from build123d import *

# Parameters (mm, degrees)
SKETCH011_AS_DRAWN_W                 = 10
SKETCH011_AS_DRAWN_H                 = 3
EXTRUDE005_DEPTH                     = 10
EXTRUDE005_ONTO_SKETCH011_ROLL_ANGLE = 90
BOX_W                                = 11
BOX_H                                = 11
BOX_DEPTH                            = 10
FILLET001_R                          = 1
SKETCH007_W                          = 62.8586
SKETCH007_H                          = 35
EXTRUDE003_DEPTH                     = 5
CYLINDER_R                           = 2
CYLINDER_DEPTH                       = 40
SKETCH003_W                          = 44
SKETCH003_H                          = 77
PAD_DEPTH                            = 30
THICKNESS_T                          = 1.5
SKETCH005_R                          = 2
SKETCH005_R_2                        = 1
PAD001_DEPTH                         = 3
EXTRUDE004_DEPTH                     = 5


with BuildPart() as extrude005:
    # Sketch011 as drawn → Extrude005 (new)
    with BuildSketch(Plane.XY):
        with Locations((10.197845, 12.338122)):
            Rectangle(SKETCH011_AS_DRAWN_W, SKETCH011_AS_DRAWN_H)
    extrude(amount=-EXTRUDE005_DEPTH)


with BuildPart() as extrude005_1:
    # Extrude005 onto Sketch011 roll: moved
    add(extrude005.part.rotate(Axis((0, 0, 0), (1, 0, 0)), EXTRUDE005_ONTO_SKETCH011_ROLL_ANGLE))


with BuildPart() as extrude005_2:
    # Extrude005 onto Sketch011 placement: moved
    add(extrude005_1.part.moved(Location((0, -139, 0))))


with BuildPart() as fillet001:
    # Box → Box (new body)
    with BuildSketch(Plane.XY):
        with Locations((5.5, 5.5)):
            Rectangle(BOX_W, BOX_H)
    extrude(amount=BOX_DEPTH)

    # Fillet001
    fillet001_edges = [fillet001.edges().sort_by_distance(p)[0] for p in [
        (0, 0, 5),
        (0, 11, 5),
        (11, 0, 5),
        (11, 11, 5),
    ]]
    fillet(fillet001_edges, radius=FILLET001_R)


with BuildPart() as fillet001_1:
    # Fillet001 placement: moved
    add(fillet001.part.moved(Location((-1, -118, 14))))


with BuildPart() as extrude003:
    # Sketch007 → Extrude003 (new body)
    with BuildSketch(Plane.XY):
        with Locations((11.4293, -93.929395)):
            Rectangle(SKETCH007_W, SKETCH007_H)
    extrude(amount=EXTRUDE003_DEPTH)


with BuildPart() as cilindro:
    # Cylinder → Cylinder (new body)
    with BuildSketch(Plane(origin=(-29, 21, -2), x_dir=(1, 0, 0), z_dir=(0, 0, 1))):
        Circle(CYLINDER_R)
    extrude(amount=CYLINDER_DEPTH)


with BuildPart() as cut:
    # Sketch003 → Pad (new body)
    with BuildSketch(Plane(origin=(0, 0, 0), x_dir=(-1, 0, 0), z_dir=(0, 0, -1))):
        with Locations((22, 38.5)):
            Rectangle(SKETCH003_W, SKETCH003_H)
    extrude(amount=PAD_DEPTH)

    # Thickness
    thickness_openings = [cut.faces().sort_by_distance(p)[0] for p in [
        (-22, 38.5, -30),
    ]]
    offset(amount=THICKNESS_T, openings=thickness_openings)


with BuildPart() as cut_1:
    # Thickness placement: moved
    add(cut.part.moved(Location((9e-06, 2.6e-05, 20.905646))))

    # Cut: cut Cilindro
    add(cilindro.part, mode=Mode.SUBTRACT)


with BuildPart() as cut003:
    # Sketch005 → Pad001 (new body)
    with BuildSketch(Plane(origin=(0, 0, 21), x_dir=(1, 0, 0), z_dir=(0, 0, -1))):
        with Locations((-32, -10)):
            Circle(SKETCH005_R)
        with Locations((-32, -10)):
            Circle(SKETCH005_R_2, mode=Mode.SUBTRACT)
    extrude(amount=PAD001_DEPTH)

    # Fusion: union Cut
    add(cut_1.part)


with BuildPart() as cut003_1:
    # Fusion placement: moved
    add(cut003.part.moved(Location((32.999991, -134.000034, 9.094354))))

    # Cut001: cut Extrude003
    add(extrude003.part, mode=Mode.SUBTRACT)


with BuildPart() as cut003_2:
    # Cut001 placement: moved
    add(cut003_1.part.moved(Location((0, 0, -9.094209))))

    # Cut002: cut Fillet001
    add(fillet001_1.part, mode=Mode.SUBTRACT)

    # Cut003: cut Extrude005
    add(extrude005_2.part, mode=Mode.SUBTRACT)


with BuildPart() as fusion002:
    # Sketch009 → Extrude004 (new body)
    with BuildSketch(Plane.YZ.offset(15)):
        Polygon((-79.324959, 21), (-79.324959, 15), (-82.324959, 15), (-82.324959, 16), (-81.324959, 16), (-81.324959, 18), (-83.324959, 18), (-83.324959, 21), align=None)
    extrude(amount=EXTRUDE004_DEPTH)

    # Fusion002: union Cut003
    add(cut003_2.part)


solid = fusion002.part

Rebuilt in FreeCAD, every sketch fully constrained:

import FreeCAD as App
import Part
import Sketcher

V = App.Vector
Q = App.Units.Quantity


def edges_at(feature, points):
    """Names of the edges that pass closest to the given points."""
    edges = feature.Shape.Edges
    near = lambda p: min(range(len(edges)), key=lambda i: edges[i].distToShape(Part.Vertex(*p))[0])
    return sorted({f"Edge{near(p) + 1}" for p in points})


def faces_at(feature, points):
    """Names of the faces that lie closest to the given points."""
    faces = feature.Shape.Faces
    near = lambda p: min(range(len(faces)), key=lambda i: faces[i].distToShape(Part.Vertex(*p))[0])
    return sorted({f"Face{near(p) + 1}" for p in points})

doc = App.newDocument("Part")
body = doc.addObject("PartDesign::Body", "Body")

# Sketch on XY plane
sketch1 = doc.addObject("Sketcher::SketchObject", "Sketch")
body.addObject(sketch1)
sketch1.AttachmentSupport = (doc.XY_Plane, [""])
sketch1.MapMode = "FlatFace"
sketch1.addGeometry([
    Part.LineSegment(V(5.2, 13.8, 0), V(5.2, 10.8, 0)),
    Part.LineSegment(V(5.2, 10.8, 0), V(15.2, 10.8, 0)),
    Part.LineSegment(V(15.2, 10.8, 0), V(15.2, 13.8, 0)),
    Part.LineSegment(V(15.2, 13.8, 0), V(5.2, 13.8, 0)),
], False)
sketch1.addConstraint([
    Sketcher.Constraint("Coincident", 0, 2, 1, 1),
    Sketcher.Constraint("Coincident", 1, 2, 2, 1),
    Sketcher.Constraint("Coincident", 2, 2, 3, 1),
    Sketcher.Constraint("Coincident", 3, 2, 0, 1),
    Sketcher.Constraint("Vertical", 0),
    Sketcher.Constraint("Horizontal", 1),
    Sketcher.Constraint("Vertical", 2),
    Sketcher.Constraint("Horizontal", 3),
    Sketcher.Constraint("DistanceX", 1, 1, 1, 2, Q("10 mm")),
    Sketcher.Constraint("DistanceY", 0, 2, 0, 1, Q("3 mm")),
    Sketcher.Constraint("DistanceX", -1, 1, 0, 2, Q("5.197845 mm")),
    Sketcher.Constraint("DistanceY", -1, 1, 0, 2, Q("10.838122 mm")),
])
pad1 = doc.addObject("PartDesign::Pad", "Pad")
body.addObject(pad1)
pad1.Profile = sketch1
pad1.Length = 10
pad1.Reversed = True
body2 = doc.addObject("PartDesign::Body", "Body001")
doc.recompute()

body.Placement = App.Placement(V(0, 0, 0), App.Rotation(V(1, 0, 0), 90))
boolean = doc.addObject("PartDesign::Boolean", "Boolean")
body2.addObject(boolean)
boolean.Type = "Fuse"
boolean.addObjects([body])
body3 = doc.addObject("PartDesign::Body", "Body002")
doc.recompute()

body2.Placement = App.Placement(V(0, -139, 0), App.Rotation(V(0, 0, 1), 0))
boolean2 = doc.addObject("PartDesign::Boolean", "Boolean001")
body3.addObject(boolean2)
boolean2.Type = "Fuse"
boolean2.addObjects([body2])
body4 = doc.addObject("PartDesign::Body", "Body003")

# Sketch on XY plane
sketch2 = doc.addObject("Sketcher::SketchObject", "Sketch001")
body4.addObject(sketch2)
sketch2.AttachmentSupport = (doc.getObject("XY_Plane003"), [""])
sketch2.MapMode = "FlatFace"
sketch2.addGeometry([
    Part.LineSegment(V(0, 11, 0), V(0, 0, 0)),
    Part.LineSegment(V(0, 0, 0), V(11, 0, 0)),
    Part.LineSegment(V(11, 0, 0), V(11, 11, 0)),
    Part.LineSegment(V(11, 11, 0), V(0, 11, 0)),
], False)
sketch2.addConstraint([
    Sketcher.Constraint("Coincident", 0, 2, 1, 1),
    Sketcher.Constraint("Coincident", 1, 2, 2, 1),
    Sketcher.Constraint("Coincident", 2, 2, 3, 1),
    Sketcher.Constraint("Coincident", 3, 2, 0, 1),
    Sketcher.Constraint("Vertical", 0),
    Sketcher.Constraint("Horizontal", 1),
    Sketcher.Constraint("Vertical", 2),
    Sketcher.Constraint("Horizontal", 3),
    Sketcher.Constraint("Coincident", 0, 2, -1, 1),
    Sketcher.Constraint("Equal", 3, 0),
    Sketcher.Constraint("DistanceX", 1, 1, 1, 2, Q("11 mm")),
])
pad2 = doc.addObject("PartDesign::Pad", "Pad001")
body4.addObject(pad2)
pad2.Profile = sketch2
pad2.Length = 10
doc.recompute()

fillet = doc.addObject("PartDesign::Fillet", "Fillet")
body4.addObject(fillet)
fillet.Base = (pad2, edges_at(pad2, [
    (0, 0, 5),
    (0, 11, 5),
    (11, 0, 5),
    (11, 11, 5),
]))
fillet.Radius = 1
body5 = doc.addObject("PartDesign::Body", "Body004")
doc.recompute()

body4.Placement = App.Placement(V(-1, -118, 14), App.Rotation(V(0, 0, 1), 0))
boolean3 = doc.addObject("PartDesign::Boolean", "Boolean002")
body5.addObject(boolean3)
boolean3.Type = "Fuse"
boolean3.addObjects([body4])
body6 = doc.addObject("PartDesign::Body", "Body005")

# Sketch on XY plane
sketch3 = doc.addObject("Sketcher::SketchObject", "Sketch002")
body6.addObject(sketch3)
sketch3.AttachmentSupport = (doc.getObject("XY_Plane005"), [""])
sketch3.MapMode = "FlatFace"
sketch3.addGeometry([
    Part.LineSegment(V(-20, -76, 0), V(-20, -111, 0)),
    Part.LineSegment(V(-20, -111, 0), V(43, -111, 0)),
    Part.LineSegment(V(43, -111, 0), V(43, -76, 0)),
    Part.LineSegment(V(43, -76, 0), V(-20, -76, 0)),
], False)
sketch3.addConstraint([
    Sketcher.Constraint("Coincident", 0, 2, 1, 1),
    Sketcher.Constraint("Coincident", 1, 2, 2, 1),
    Sketcher.Constraint("Coincident", 2, 2, 3, 1),
    Sketcher.Constraint("Coincident", 3, 2, 0, 1),
    Sketcher.Constraint("Vertical", 0),
    Sketcher.Constraint("Horizontal", 1),
    Sketcher.Constraint("Vertical", 2),
    Sketcher.Constraint("Horizontal", 3),
    Sketcher.Constraint("DistanceY", 0, 2, 0, 1, Q("35 mm")),
    Sketcher.Constraint("DistanceX", 0, 2, -1, 1, Q("20 mm")),
    Sketcher.Constraint("DistanceX", 1, 1, 1, 2, Q("62.8586 mm")),
    Sketcher.Constraint("DistanceY", 0, 2, -1, 1, Q("111.429395 mm")),
])
pad3 = doc.addObject("PartDesign::Pad", "Pad002")
body6.addObject(pad3)
pad3.Profile = sketch3
pad3.Length = 5
body7 = doc.addObject("PartDesign::Body", "Body006")

# Sketch on XY plane
sketch4 = doc.addObject("Sketcher::SketchObject", "Sketch003")
body7.addObject(sketch4)
sketch4.AttachmentSupport = (doc.getObject("XY_Plane006"), [""])
sketch4.MapMode = "FlatFace"
sketch4.AttachmentOffset = App.Placement(V(0, 0, -2), App.Rotation())
sketch4.addGeometry(Part.Circle(V(-29, 21, 0), V(0, 0, 1), 2), False)
sketch4.addConstraint([
    Sketcher.Constraint("Diameter", 0, Q("4 mm")),
    Sketcher.Constraint("DistanceX", 0, 3, -1, 1, Q("29 mm")),
    Sketcher.Constraint("DistanceY", -1, 1, 0, 3, Q("21 mm")),
])
pad4 = doc.addObject("PartDesign::Pad", "Pad003")
body7.addObject(pad4)
pad4.Profile = sketch4
pad4.Length = 40
body8 = doc.addObject("PartDesign::Body", "Body007")

# Sketch on XY plane
sketch5 = doc.addObject("Sketcher::SketchObject", "Sketch004")
body8.addObject(sketch5)
sketch5.AttachmentSupport = (doc.getObject("XY_Plane007"), [""])
sketch5.MapMode = "FlatFace"
sketch5.addGeometry([
    Part.LineSegment(V(0, 77, 0), V(0, 0, 0)),
    Part.LineSegment(V(0, 0, 0), V(-44, 0, 0)),
    Part.LineSegment(V(-44, 0, 0), V(-44, 77, 0)),
    Part.LineSegment(V(-44, 77, 0), V(0, 77, 0)),
], False)
sketch5.addConstraint([
    Sketcher.Constraint("Coincident", 0, 2, 1, 1),
    Sketcher.Constraint("Coincident", 1, 2, 2, 1),
    Sketcher.Constraint("Coincident", 2, 2, 3, 1),
    Sketcher.Constraint("Coincident", 3, 2, 0, 1),
    Sketcher.Constraint("Vertical", 0),
    Sketcher.Constraint("Horizontal", 1),
    Sketcher.Constraint("Vertical", 2),
    Sketcher.Constraint("Horizontal", 3),
    Sketcher.Constraint("Coincident", 0, 2, -1, 1),
    Sketcher.Constraint("DistanceX", 1, 2, 1, 1, Q("44 mm")),
    Sketcher.Constraint("DistanceY", 0, 2, 0, 1, Q("77 mm")),
])
pad5 = doc.addObject("PartDesign::Pad", "Pad004")
body8.addObject(pad5)
pad5.Profile = sketch5
pad5.Length = 30
pad5.Reversed = True
doc.recompute()

thickness = doc.addObject("PartDesign::Thickness", "Thickness")
body8.addObject(thickness)
thickness.Base = (pad5, faces_at(pad5, [(-22, 38.5, -30)]))
thickness.Value = 1.5
thickness.Reversed = False
thickness.Join = "Arc"
body9 = doc.addObject("PartDesign::Body", "Body008")
doc.recompute()

body8.Placement = App.Placement(V(0.000009, 0.000026, 20.905646), App.Rotation(V(0, 0, 1), 0))
boolean4 = doc.addObject("PartDesign::Boolean", "Boolean003")
body9.addObject(boolean4)
boolean4.Type = "Fuse"
boolean4.addObjects([body8])
doc.recompute()

boolean5 = doc.addObject("PartDesign::Boolean", "Boolean004")
body9.addObject(boolean5)
boolean5.Type = "Cut"
boolean5.addObjects([body7])
body10 = doc.addObject("PartDesign::Body", "Body009")

# Sketch on XY plane
sketch6 = doc.addObject("Sketcher::SketchObject", "Sketch005")
body10.addObject(sketch6)
sketch6.AttachmentSupport = (doc.getObject("XY_Plane009"), [""])
sketch6.MapMode = "FlatFace"
sketch6.AttachmentOffset = App.Placement(V(0, 0, 21), App.Rotation())
sketch6.addGeometry([
    Part.Circle(V(-32, 10, 0), V(0, 0, 1), 2),
    Part.Circle(V(-32, 10, 0), V(0, 0, 1), 1),
], False)
sketch6.addConstraint([
    Sketcher.Constraint("Coincident", 1, 3, 0, 3),
    Sketcher.Constraint("Diameter", 0, Q("4 mm")),
    Sketcher.Constraint("Diameter", 1, Q("2 mm")),
    Sketcher.Constraint("DistanceX", 0, 3, -1, 1, Q("32 mm")),
    Sketcher.Constraint("DistanceY", -1, 1, 0, 3, Q("10 mm")),
])
pad6 = doc.addObject("PartDesign::Pad", "Pad005")
body10.addObject(pad6)
pad6.Profile = sketch6
pad6.Length = 3
pad6.Reversed = True
doc.recompute()

boolean6 = doc.addObject("PartDesign::Boolean", "Boolean005")
body10.addObject(boolean6)
boolean6.Type = "Fuse"
boolean6.addObjects([body9])
body11 = doc.addObject("PartDesign::Body", "Body010")
doc.recompute()

body10.Placement = App.Placement(V(32.999991, -134.000034, 9.094354), App.Rotation(V(0, 0, 1), 0))
boolean7 = doc.addObject("PartDesign::Boolean", "Boolean006")
body11.addObject(boolean7)
boolean7.Type = "Fuse"
boolean7.addObjects([body10])
doc.recompute()

boolean8 = doc.addObject("PartDesign::Boolean", "Boolean007")
body11.addObject(boolean8)
boolean8.Type = "Cut"
boolean8.addObjects([body6])
body12 = doc.addObject("PartDesign::Body", "Body011")
doc.recompute()

body11.Placement = App.Placement(V(0, 0, -9.094209), App.Rotation(V(0, 0, 1), 0))
boolean9 = doc.addObject("PartDesign::Boolean", "Boolean008")
body12.addObject(boolean9)
boolean9.Type = "Fuse"
boolean9.addObjects([body11])
doc.recompute()

boolean10 = doc.addObject("PartDesign::Boolean", "Boolean009")
body12.addObject(boolean10)
boolean10.Type = "Cut"
boolean10.addObjects([body5])
doc.recompute()

boolean11 = doc.addObject("PartDesign::Boolean", "Boolean010")
body12.addObject(boolean11)
boolean11.Type = "Cut"
boolean11.addObjects([body3])
body13 = doc.addObject("PartDesign::Body", "Body012")

# Sketch on YZ plane
sketch7 = doc.addObject("Sketcher::SketchObject", "Sketch006")
body13.addObject(sketch7)
sketch7.AttachmentSupport = (doc.getObject("YZ_Plane012"), [""])
sketch7.MapMode = "FlatFace"
sketch7.AttachmentOffset = App.Placement(V(0, 0, 15), App.Rotation())
sketch7.addGeometry([
    Part.LineSegment(V(-79.3, 15, 0), V(-79.3, 21, 0)),  # 0
    Part.LineSegment(V(-79.3, 21, 0), V(-83.3, 21, 0)),  # 1
    Part.LineSegment(V(-83.3, 21, 0), V(-83.3, 18, 0)),  # 2
    Part.LineSegment(V(-83.3, 18, 0), V(-81.3, 18, 0)),  # 3
    Part.LineSegment(V(-81.3, 18, 0), V(-81.3, 16, 0)),  # 4
    Part.LineSegment(V(-81.3, 16, 0), V(-82.3, 16, 0)),  # 5
    Part.LineSegment(V(-82.3, 16, 0), V(-82.3, 15, 0)),  # 6
    Part.LineSegment(V(-82.3, 15, 0), V(-79.3, 15, 0)),  # 7
], False)
sketch7.addConstraint([
    Sketcher.Constraint("Coincident", 0, 2, 1, 1),
    Sketcher.Constraint("Coincident", 1, 2, 2, 1),
    Sketcher.Constraint("Coincident", 2, 2, 3, 1),
    Sketcher.Constraint("Coincident", 3, 2, 4, 1),
    Sketcher.Constraint("Coincident", 4, 2, 5, 1),
    Sketcher.Constraint("Coincident", 5, 2, 6, 1),
    Sketcher.Constraint("Coincident", 6, 2, 7, 1),
    Sketcher.Constraint("Coincident", 7, 2, 0, 1),
    Sketcher.Constraint("Vertical", 0),
    Sketcher.Constraint("Horizontal", 1),
    Sketcher.Constraint("Vertical", 2),
    Sketcher.Constraint("Horizontal", 3),
    Sketcher.Constraint("Vertical", 4),
    Sketcher.Constraint("Horizontal", 5),
    Sketcher.Constraint("Vertical", 6),
    Sketcher.Constraint("Horizontal", 7),
    Sketcher.Constraint("Equal", 7, 2),
    Sketcher.Constraint("Equal", 3, 4),
    Sketcher.Constraint("Equal", 5, 6),
    Sketcher.Constraint("DistanceX", 1, 2, 1, 1, Q("4 mm")),
    Sketcher.Constraint("DistanceX", 3, 1, 3, 2, Q("2 mm")),
    Sketcher.Constraint("DistanceX", 5, 2, 5, 1, Q("1 mm")),
    Sketcher.Constraint("DistanceY", -1, 1, 0, 2, Q("21 mm")),
    Sketcher.Constraint("DistanceX", 0, 2, -1, 1, Q("79.324959 mm")),
])
pad7 = doc.addObject("PartDesign::Pad", "Pad006")
body13.addObject(pad7)
pad7.Profile = sketch7
pad7.Length = 5
doc.recompute()

boolean12 = doc.addObject("PartDesign::Boolean", "Boolean011")
body13.addObject(boolean12)
boolean12.Type = "Fuse"
boolean12.addObjects([body12])

doc.recompute()
